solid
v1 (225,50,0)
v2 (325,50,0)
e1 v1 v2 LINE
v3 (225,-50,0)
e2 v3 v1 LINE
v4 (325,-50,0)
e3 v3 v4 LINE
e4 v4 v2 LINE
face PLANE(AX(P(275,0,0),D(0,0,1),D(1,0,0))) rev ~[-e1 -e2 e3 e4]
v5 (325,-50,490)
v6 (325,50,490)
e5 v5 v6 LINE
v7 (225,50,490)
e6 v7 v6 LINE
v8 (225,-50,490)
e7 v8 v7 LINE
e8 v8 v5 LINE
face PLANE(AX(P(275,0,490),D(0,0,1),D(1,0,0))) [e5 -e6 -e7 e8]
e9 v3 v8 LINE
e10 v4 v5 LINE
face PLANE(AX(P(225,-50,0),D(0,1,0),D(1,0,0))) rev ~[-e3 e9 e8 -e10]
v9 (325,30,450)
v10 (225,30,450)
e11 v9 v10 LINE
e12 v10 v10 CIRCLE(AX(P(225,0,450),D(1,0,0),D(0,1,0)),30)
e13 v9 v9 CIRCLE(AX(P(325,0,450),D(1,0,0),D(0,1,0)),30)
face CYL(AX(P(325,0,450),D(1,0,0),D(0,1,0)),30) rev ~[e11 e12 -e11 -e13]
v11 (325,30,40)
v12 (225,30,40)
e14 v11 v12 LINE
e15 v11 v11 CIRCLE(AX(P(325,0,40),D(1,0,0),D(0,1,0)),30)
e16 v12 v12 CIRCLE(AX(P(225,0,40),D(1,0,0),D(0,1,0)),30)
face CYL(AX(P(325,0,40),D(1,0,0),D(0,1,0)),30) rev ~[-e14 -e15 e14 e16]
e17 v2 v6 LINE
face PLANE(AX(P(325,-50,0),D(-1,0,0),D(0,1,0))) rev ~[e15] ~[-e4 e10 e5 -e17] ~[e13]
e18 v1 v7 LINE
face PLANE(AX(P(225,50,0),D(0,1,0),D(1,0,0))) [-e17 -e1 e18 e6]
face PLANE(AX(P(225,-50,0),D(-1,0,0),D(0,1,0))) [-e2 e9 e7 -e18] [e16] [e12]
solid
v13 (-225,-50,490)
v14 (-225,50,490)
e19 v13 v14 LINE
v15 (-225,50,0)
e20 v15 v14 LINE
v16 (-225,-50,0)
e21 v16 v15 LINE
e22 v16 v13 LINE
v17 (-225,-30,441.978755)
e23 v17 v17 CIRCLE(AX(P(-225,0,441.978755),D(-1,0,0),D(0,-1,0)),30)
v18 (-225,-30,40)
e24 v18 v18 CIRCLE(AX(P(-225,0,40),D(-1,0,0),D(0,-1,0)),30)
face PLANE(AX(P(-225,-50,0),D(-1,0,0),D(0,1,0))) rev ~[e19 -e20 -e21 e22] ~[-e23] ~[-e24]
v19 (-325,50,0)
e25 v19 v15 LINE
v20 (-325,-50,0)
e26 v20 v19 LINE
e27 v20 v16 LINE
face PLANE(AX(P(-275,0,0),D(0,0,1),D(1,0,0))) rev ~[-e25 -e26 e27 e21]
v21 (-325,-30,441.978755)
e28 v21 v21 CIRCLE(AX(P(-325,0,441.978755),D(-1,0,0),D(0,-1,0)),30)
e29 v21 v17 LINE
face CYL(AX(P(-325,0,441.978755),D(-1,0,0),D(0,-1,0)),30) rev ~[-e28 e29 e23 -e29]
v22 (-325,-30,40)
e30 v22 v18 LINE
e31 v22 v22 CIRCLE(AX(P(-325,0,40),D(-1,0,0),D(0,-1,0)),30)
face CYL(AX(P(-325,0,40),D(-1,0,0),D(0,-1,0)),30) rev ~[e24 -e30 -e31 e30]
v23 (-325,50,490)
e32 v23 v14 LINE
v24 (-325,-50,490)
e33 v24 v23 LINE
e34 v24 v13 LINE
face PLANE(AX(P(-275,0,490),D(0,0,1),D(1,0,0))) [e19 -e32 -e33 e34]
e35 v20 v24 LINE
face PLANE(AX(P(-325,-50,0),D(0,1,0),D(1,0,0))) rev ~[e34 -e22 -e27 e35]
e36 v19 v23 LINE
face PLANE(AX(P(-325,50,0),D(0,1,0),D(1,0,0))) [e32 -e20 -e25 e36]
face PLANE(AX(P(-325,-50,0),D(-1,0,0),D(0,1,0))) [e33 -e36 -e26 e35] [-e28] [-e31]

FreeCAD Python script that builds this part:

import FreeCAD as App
import Part
import Sketcher


def add_polygon(sketch, points):
    """Adds a closed chain of lines whose ends are joined by coincident constraints."""
    first, n = sketch.GeometryCount, len(points)
    for a, b in zip(points, points[1:] + points[:1]):
        sketch.addGeometry(Part.LineSegment(App.Vector(*a, 0), App.Vector(*b, 0)), False)
    for i in range(n):
        sketch.addConstraint(Sketcher.Constraint("Coincident", first + i, 2, first + (i + 1) % n, 1))

doc = App.newDocument("Part")
body = doc.addObject("PartDesign::Body", "Body")
body.AllowCompound = True

# Sketch on XY plane
sketch1 = body.newObject("Sketcher::SketchObject", "Sketch")
sketch1.AttachmentSupport = (doc.getObject("XY_Plane"), [""])
sketch1.MapMode = "FlatFace"
add_polygon(sketch1, [(-325, 50), (-325, -50), (-225, -50), (-225, 50)])  # lines 0-3
add_polygon(sketch1, [(225, 50), (225, -50), (325, -50), (325, 50)])  # lines 4-7
sketch1.addConstraint([
    Sketcher.Constraint("Vertical", 0),
    Sketcher.Constraint("Horizontal", 1),
    Sketcher.Constraint("Vertical", 2),
    Sketcher.Constraint("Horizontal", 3),
    Sketcher.Constraint("Vertical", 4),
    Sketcher.Constraint("Horizontal", 5),
    Sketcher.Constraint("Vertical", 6),
    Sketcher.Constraint("Horizontal", 7),
    Sketcher.Constraint("Symmetric", 2, 2, 4, 2, -1, 1),
    Sketcher.Constraint("Symmetric", 0, 2, 6, 2, -1, 1),
    Sketcher.Constraint("Horizontal", 1, 2, 4, 2),
    Sketcher.Constraint("Equal", 7, 0),
    Sketcher.Constraint("DistanceX", 1, 1, 1, 2, 100.0),
    Sketcher.Constraint("DistanceX", 0, 2, -1, 1, 325.0),
])
pad1 = body.newObject("PartDesign::Pad", "Pad")
pad1.Profile = sketch1
pad1.Length = 490

# Sketch on YZ plane
sketch2 = body.newObject("Sketcher::SketchObject", "Sketch001")
sketch2.AttachmentSupport = (doc.getObject("YZ_Plane"), [""])
sketch2.MapMode = "FlatFace"
sketch2.AttachmentOffset = App.Placement(App.Vector(0, 0, -325), App.Rotation())
sketch2.addGeometry(Part.Circle(App.Vector(0, 442, 0), App.Vector(0, 0, 1), 30), False)
sketch2.addConstraint([
    Sketcher.Constraint("PointOnObject", 0, 3, -2),
    Sketcher.Constraint("Diameter", 0, 60.0),
    Sketcher.Constraint("DistanceY", -1, 1, 0, 3, 441.978755),
])
pocket1 = body.newObject("PartDesign::Pocket", "Pocket")
pocket1.Profile = sketch2
pocket1.Length = 100
pocket1.Reversed = True

# Sketch on YZ plane
sketch3 = body.newObject("Sketcher::SketchObject", "Sketch002")
sketch3.AttachmentSupport = (doc.getObject("YZ_Plane"), [""])
sketch3.MapMode = "FlatFace"
sketch3.AttachmentOffset = App.Placement(App.Vector(0, 0, 325), App.Rotation())
sketch3.addGeometry(Part.Circle(App.Vector(0, 450, 0), App.Vector(0, 0, 1), 30), False)
sketch3.addConstraint([
    Sketcher.Constraint("PointOnObject", 0, 3, -2),
    Sketcher.Constraint("Diameter", 0, 60.0),
    Sketcher.Constraint("DistanceY", -1, 1, 0, 3, 450.0),
])
pocket2 = body.newObject("PartDesign::Pocket", "Pocket001")
pocket2.Profile = sketch3
pocket2.Length = 100

# Sketch on YZ plane
sketch4 = body.newObject("Sketcher::SketchObject", "Sketch003")
sketch4.AttachmentSupport = (doc.getObject("YZ_Plane"), [""])
sketch4.MapMode = "FlatFace"
sketch4.AttachmentOffset = App.Placement(App.Vector(0, 0, 325), App.Rotation())
sketch4.addGeometry(Part.Circle(App.Vector(0, 40, 0), App.Vector(0, 0, 1), 30), False)
sketch4.addConstraint([
    Sketcher.Constraint("PointOnObject", 0, 3, -2),
    Sketcher.Constraint("Diameter", 0, 60.0),
    Sketcher.Constraint("DistanceY", -1, 1, 0, 3, 40.0),
])
pocket3 = body.newObject("PartDesign::Pocket", "Pocket002")
pocket3.Profile = sketch4
pocket3.Length = 100

# Sketch on YZ plane
sketch5 = body.newObject("Sketcher::SketchObject", "Sketch004")
sketch5.AttachmentSupport = (doc.getObject("YZ_Plane"), [""])
sketch5.MapMode = "FlatFace"
sketch5.AttachmentOffset = App.Placement(App.Vector(0, 0, -325), App.Rotation())
sketch5.addGeometry(Part.Circle(App.Vector(0, 40, 0), App.Vector(0, 0, 1), 30), False)
sketch5.addConstraint([
    Sketcher.Constraint("PointOnObject", 0, 3, -2),
    Sketcher.Constraint("Diameter", 0, 60.0),
    Sketcher.Constraint("DistanceY", -1, 1, 0, 3, 40.0),
])
pocket4 = body.newObject("PartDesign::Pocket", "Pocket003")
pocket4.Profile = sketch5
pocket4.Length = 100
pocket4.Reversed = True

doc.recompute()
